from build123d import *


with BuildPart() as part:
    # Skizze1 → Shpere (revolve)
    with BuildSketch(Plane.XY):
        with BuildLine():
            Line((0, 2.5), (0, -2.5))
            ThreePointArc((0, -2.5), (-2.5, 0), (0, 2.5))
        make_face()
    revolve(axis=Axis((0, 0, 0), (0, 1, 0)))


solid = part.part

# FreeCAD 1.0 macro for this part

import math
import FreeCAD as App
import Part
import Sketcher
from FreeCAD import Vector
Q = App.Units.Quantity

doc = App.newDocument("Part")
body = doc.addObject("PartDesign::Body", "Body")

# Sketch on XY plane
sketch1 = body.newObject("Sketcher::SketchObject", "Sketch")
sketch1.AttachmentSupport = (doc.getObject("XY_Plane"), [""])
sketch1.MapMode = "FlatFace"
sketch1.addGeometry(Part.LineSegment(Vector(0, -2.5, 0), Vector(0, 2.5, 0)), False)
sketch1.addGeometry(Part.ArcOfCircle(Part.Circle(Vector(0, 0, 0), Vector(0, 0, 1), 2.5), math.radians(90), math.radians(270)), False)
sketch1.addConstraint(Sketcher.Constraint("Coincident", 0, 1, 1, 2))
sketch1.addConstraint(Sketcher.Constraint("Coincident", 1, 1, 0, 2))
sketch1.addConstraint(Sketcher.Constraint("Vertical", 0))
sketch1.addConstraint(Sketcher.Constraint("Coincident", 1, 3, -1, 1))
sketch1.addConstraint(Sketcher.Constraint("PointOnObject", 0, 1, -2))
sketch1.addConstraint(Sketcher.Constraint("Radius", 1, Q("2.5 mm")))
revolution = body.newObject("PartDesign::Revolution", "Revolution")
revolution.Profile = sketch1
revolution.ReferenceAxis = (sketch1, ["V_Axis"])
revolution.Angle = 360

doc.recompute()
